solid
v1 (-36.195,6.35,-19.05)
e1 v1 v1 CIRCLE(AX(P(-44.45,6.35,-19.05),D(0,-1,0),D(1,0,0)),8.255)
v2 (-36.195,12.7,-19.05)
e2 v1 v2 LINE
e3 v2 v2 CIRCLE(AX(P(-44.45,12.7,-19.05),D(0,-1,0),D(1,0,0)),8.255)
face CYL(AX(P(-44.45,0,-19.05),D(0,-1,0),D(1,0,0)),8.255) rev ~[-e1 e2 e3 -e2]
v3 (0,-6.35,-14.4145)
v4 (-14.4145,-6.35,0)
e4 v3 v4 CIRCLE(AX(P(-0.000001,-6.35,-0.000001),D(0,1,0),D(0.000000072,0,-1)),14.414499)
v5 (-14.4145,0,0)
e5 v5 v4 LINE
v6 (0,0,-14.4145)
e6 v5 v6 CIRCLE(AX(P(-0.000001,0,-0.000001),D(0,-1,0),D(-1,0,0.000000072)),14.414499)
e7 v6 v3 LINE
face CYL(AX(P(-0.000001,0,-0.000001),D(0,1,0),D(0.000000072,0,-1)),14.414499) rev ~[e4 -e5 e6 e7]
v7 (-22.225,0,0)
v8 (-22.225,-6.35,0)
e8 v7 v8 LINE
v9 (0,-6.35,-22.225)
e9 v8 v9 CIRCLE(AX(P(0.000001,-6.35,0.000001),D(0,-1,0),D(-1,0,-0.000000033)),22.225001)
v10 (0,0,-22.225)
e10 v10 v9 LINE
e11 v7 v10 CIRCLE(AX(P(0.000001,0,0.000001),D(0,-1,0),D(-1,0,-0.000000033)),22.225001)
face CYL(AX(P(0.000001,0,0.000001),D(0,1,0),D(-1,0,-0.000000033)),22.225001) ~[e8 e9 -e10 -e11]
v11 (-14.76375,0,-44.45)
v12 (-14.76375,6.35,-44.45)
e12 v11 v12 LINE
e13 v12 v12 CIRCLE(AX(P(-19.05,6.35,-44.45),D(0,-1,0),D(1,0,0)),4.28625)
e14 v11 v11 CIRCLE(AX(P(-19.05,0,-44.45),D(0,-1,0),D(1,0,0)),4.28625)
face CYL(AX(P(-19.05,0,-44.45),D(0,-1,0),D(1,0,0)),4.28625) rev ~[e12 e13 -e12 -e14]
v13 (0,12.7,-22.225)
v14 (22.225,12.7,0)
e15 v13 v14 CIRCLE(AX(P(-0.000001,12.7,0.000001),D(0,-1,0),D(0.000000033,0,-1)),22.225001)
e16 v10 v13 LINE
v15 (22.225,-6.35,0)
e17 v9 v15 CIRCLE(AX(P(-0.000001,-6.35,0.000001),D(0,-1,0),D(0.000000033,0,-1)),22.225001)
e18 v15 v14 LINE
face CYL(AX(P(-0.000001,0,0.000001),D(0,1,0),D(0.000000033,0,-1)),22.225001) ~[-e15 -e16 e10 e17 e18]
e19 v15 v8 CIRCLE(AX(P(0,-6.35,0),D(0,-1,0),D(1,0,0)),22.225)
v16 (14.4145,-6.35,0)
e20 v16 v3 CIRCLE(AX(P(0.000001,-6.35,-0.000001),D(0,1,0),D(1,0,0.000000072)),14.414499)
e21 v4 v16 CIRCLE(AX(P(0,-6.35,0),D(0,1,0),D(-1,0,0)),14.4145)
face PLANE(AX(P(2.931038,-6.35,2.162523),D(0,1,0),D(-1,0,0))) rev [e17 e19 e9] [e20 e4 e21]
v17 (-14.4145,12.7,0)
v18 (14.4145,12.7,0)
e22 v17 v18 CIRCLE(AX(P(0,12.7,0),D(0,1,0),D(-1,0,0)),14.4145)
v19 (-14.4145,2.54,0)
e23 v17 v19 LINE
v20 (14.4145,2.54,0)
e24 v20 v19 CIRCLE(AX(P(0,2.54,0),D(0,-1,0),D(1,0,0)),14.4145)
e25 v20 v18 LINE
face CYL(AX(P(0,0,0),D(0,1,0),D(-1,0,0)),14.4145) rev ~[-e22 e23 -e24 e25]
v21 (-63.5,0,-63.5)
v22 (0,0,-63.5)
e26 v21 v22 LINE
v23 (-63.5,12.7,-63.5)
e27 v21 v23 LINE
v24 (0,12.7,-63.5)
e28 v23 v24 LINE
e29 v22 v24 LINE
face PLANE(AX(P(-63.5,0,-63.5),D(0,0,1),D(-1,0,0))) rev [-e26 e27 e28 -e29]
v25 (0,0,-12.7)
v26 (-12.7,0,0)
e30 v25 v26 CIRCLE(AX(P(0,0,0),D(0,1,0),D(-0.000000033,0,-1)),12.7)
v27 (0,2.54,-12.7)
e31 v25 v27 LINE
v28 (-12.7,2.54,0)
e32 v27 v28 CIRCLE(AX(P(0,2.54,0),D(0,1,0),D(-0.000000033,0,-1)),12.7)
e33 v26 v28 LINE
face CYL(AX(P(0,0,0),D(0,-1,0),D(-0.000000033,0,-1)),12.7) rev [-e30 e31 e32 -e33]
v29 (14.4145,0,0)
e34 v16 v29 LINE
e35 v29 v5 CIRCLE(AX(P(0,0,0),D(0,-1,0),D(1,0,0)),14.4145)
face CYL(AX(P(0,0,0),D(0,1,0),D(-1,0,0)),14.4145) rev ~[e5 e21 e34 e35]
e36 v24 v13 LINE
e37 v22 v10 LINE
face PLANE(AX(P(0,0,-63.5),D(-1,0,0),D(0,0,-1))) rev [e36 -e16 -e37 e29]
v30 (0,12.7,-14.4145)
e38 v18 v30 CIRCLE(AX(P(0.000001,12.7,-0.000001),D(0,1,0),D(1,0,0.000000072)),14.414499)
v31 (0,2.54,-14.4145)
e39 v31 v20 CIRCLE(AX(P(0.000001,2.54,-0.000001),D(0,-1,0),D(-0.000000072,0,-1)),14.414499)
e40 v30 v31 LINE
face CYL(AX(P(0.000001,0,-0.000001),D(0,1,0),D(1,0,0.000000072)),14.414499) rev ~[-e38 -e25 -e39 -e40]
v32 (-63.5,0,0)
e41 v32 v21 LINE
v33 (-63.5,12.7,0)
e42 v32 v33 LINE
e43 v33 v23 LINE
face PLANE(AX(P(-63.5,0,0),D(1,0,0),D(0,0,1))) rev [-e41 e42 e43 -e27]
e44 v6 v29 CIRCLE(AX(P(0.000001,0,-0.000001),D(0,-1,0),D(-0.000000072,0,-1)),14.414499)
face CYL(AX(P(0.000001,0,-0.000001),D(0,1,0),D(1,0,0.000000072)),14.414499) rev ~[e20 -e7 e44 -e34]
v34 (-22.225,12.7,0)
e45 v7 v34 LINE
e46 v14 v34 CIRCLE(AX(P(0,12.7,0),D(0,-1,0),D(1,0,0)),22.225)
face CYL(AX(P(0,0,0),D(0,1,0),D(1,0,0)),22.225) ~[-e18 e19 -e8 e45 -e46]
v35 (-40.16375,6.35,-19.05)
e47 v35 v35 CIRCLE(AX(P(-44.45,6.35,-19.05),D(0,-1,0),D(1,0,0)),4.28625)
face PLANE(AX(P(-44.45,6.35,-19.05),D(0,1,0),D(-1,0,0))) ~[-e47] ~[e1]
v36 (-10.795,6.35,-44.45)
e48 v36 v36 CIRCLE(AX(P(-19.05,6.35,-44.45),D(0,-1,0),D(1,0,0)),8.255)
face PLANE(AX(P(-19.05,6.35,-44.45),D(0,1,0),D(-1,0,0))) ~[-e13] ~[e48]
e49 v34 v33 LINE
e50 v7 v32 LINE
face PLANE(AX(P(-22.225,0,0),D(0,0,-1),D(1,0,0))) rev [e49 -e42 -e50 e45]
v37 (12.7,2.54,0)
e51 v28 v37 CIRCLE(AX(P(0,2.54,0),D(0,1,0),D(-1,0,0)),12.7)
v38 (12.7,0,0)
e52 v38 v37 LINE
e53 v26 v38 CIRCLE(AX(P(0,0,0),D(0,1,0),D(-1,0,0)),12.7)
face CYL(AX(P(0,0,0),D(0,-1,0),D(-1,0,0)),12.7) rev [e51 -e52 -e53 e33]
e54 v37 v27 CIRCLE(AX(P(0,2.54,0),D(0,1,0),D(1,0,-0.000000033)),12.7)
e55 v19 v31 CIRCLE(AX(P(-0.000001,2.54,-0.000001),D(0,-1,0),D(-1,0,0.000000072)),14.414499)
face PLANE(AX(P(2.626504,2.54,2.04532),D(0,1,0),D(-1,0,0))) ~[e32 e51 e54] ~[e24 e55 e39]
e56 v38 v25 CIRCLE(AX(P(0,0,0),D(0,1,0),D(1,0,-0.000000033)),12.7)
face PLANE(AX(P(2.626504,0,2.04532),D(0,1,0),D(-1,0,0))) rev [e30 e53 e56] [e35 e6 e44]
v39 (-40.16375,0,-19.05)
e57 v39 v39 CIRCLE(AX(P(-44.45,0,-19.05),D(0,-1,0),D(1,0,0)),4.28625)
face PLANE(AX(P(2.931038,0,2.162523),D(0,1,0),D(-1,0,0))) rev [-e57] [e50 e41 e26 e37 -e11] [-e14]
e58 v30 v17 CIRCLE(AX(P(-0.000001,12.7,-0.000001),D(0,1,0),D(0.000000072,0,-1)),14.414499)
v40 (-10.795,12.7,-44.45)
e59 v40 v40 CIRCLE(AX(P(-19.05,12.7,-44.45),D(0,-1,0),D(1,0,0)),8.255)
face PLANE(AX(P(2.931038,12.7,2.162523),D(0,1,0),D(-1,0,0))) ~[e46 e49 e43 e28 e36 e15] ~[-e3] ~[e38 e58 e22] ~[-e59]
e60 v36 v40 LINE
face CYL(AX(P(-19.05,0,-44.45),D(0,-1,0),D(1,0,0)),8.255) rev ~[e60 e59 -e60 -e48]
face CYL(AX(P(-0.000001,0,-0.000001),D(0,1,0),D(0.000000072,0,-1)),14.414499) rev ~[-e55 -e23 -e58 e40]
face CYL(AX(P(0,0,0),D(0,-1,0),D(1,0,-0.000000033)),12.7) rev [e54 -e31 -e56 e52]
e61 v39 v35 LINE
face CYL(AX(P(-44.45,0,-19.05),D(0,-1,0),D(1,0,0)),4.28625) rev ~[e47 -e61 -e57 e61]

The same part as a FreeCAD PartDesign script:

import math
import FreeCAD as App
import Part
import Sketcher
Q = App.Units.Quantity

doc = App.newDocument("Part")
body = doc.addObject("PartDesign::Body", "Body")

sketch1 = body.newObject("Sketcher::SketchObject", "Sketch")
sketch1.AttachmentSupport = (doc.getObject("XZ_Plane"), [""])
sketch1.MapMode = "FlatFace"
sketch1.addGeometry(Part.ArcOfCircle(Part.Circle(App.Vector(0.000001, 0.000001, 0), App.Vector(0, 0, 1), 22.225001), math.radians(-179.999998), math.radians(-90.000002)), False)
sketch1.addGeometry(Part.LineSegment(App.Vector(-22.225, 0, 0), App.Vector(-63.5, 0, 0)), False)
sketch1.addGeometry(Part.LineSegment(App.Vector(-63.5, 0, 0), App.Vector(-63.5, -63.5, 0)), False)
sketch1.addGeometry(Part.LineSegment(App.Vector(-63.5, -63.5, 0), App.Vector(0, -63.5, 0)), False)
sketch1.addGeometry(Part.LineSegment(App.Vector(0, -63.5, 0), App.Vector(0, -22.225, 0)), False)
sketch1.addGeometry(Part.Circle(App.Vector(-19.05, -44.45, 0), App.Vector(0, 0, 1), 8.255), False)
sketch1.addGeometry(Part.Circle(App.Vector(-44.45, -19.05, 0), App.Vector(0, 0, 1), 8.255), False)
sketch1.addConstraint(Sketcher.Constraint("Coincident", 0, 1, 1, 1))
sketch1.addConstraint(Sketcher.Constraint("Coincident", 1, 2, 2, 1))
sketch1.addConstraint(Sketcher.Constraint("Coincident", 2, 2, 3, 1))
sketch1.addConstraint(Sketcher.Constraint("Coincident", 3, 2, 4, 1))
sketch1.addConstraint(Sketcher.Constraint("Coincident", 4, 2, 0, 2))
sketch1.addConstraint(Sketcher.Constraint("Horizontal", 1))
sketch1.addConstraint(Sketcher.Constraint("Vertical", 2))
sketch1.addConstraint(Sketcher.Constraint("Horizontal", 3))
sketch1.addConstraint(Sketcher.Constraint("Vertical", 4))
sketch1.addConstraint(Sketcher.Constraint("Coincident", 0, 3, -1, 1))
sketch1.addConstraint(Sketcher.Constraint("Equal", 5, 6))
sketch1.addConstraint(Sketcher.Constraint("PointOnObject", 0, 1, -1))
sketch1.addConstraint(Sketcher.Constraint("PointOnObject", 3, 2, -2))
sketch1.addConstraint(Sketcher.Constraint("Equal", 3, 2))
sketch1.addConstraint(Sketcher.Constraint("Diameter", 5, Q("0.65 in")))
sketch1.addConstraint(Sketcher.Constraint("DistanceX", 3, 1, 3, 2, Q("2.5 in")))
sketch1.addConstraint(Sketcher.Constraint("Radius", 0, Q("0.875 in")))
sketch1.addConstraint(Sketcher.Constraint("DistanceX", 6, 3, 5, 3, Q("1 in")))
sketch1.addConstraint(Sketcher.Constraint("DistanceY", 5, 3, 6, 3, Q("1 in")))
sketch1.addConstraint(Sketcher.Constraint("DistanceX", 5, 3, -1, 1, Q("0.75 in")))
sketch1.addConstraint(Sketcher.Constraint("DistanceY", 5, 3, -1, 1, Q("1.75 in")))
pad1 = body.newObject("PartDesign::Pad", "Pad")
pad1.Profile = sketch1
pad1.Length = Q("0.5 in")

sketch2 = body.newObject("Sketcher::SketchObject", "Sketch001")
sketch2.AttachmentSupport = (doc.getObject("XZ_Plane"), [""])
sketch2.MapMode = "FlatFace"
sketch2.addGeometry(Part.Circle(App.Vector(-44.45, -19.05, 0), App.Vector(0, 0, 1), 8.255), False)
sketch2.addGeometry(Part.Circle(App.Vector(-44.45, -19.05, 0), App.Vector(0, 0, 1), 4.28625), False)
sketch2.addGeometry(Part.Circle(App.Vector(-19.05, -44.45, 0), App.Vector(0, 0, 1), 8.255), False)
sketch2.addGeometry(Part.Circle(App.Vector(-19.05, -44.45, 0), App.Vector(0, 0, 1), 4.28625), False)
sketch2.addConstraint(Sketcher.Constraint("Coincident", 1, 3, 0, 3))
sketch2.addConstraint(Sketcher.Constraint("Coincident", 3, 3, 2, 3))
sketch2.addConstraint(Sketcher.Constraint("Equal", 0, 2))
sketch2.addConstraint(Sketcher.Constraint("Equal", 1, 3))
sketch2.addConstraint(Sketcher.Constraint("Diameter", 0, Q("0.65 in")))
sketch2.addConstraint(Sketcher.Constraint("DistanceX", 0, 3, 2, 3, Q("1 in")))
sketch2.addConstraint(Sketcher.Constraint("DistanceY", 2, 3, 0, 3, Q("1 in")))
sketch2.addConstraint(Sketcher.Constraint("Diameter", 1, Q("0.3375 in")))
sketch2.addConstraint(Sketcher.Constraint("DistanceX", 0, 3, -1, 1, Q("1.75 in")))
sketch2.addConstraint(Sketcher.Constraint("DistanceY", 0, 3, -1, 1, Q("0.75 in")))
pad2 = body.newObject("PartDesign::Pad", "Pad001")
pad2.Profile = sketch2
pad2.Length = Q("0.25 in")

sketch3 = body.newObject("Sketcher::SketchObject", "Sketch002")
sketch3.AttachmentSupport = (doc.getObject("XZ_Plane"), [""])
sketch3.MapMode = "FlatFace"
sketch3.addGeometry(Part.ArcOfCircle(Part.Circle(App.Vector(-0.000001, 0.000001, 0), App.Vector(0, 0, 1), 22.225001), math.radians(-89.999998), math.radians(-0.000002)), False)
sketch3.addGeometry(Part.ArcOfCircle(Part.Circle(App.Vector(0, 0, 0), App.Vector(0, 0, 1), 22.225), math.radians(0), math.radians(180)), False)
sketch3.addGeometry(Part.ArcOfCircle(Part.Circle(App.Vector(0.000001, 0.000001, 0), App.Vector(0, 0, 1), 22.225001), math.radians(-179.999998), math.radians(-90.000002)), False)
sketch3.addGeometry(Part.ArcOfCircle(Part.Circle(App.Vector(0, 0, 0), App.Vector(0, 0, 1), 14.4145), math.radians(0), math.radians(180)), False)
sketch3.addGeometry(Part.ArcOfCircle(Part.Circle(App.Vector(0.000001, -0.000001, 0), App.Vector(0, 0, 1), 14.414499), math.radians(-90.000004), math.radians(0.000004)), False)
sketch3.addGeometry(Part.ArcOfCircle(Part.Circle(App.Vector(-0.000001, -0.000001, 0), App.Vector(0, 0, 1), 14.414499), math.radians(179.999996), math.radians(270.000004)), False)
sketch3.addConstraint(Sketcher.Constraint("Tangent", 0, 2, 1, 1))
sketch3.addConstraint(Sketcher.Constraint("Tangent", 1, 2, 2, 1))
sketch3.addConstraint(Sketcher.Constraint("Tangent", 2, 2, 0, 1))
sketch3.addConstraint(Sketcher.Constraint("Tangent", 3, 1, 4, 2))
sketch3.addConstraint(Sketcher.Constraint("Tangent", 4, 1, 5, 2))
sketch3.addConstraint(Sketcher.Constraint("Tangent", 5, 1, 3, 2))
sketch3.addConstraint(Sketcher.Constraint("Coincident", 0, 3, -1, 1))
sketch3.addConstraint(Sketcher.Constraint("Coincident", 3, 3, -1, 1))
sketch3.addConstraint(Sketcher.Constraint("PointOnObject", 0, 2, -1))
sketch3.addConstraint(Sketcher.Constraint("PointOnObject", 1, 2, -1))
sketch3.addConstraint(Sketcher.Constraint("PointOnObject", 2, 2, -2))
sketch3.addConstraint(Sketcher.Constraint("PointOnObject", 3, 1, -1))
sketch3.addConstraint(Sketcher.Constraint("PointOnObject", 4, 1, -2))
sketch3.addConstraint(Sketcher.Constraint("PointOnObject", 5, 1, -1))
sketch3.addConstraint(Sketcher.Constraint("Radius", 0, Q("0.875 in")))
sketch3.addConstraint(Sketcher.Constraint("Radius", 3, Q("0.5675 in")))
pad3 = body.newObject("PartDesign::Pad", "Pad002")
pad3.Profile = sketch3
pad3.Type = "TwoLengths"
pad3.Length = Q("0.5 in")
pad3.Length2 = Q("0.25 in")

sketch4 = body.newObject("Sketcher::SketchObject", "Sketch003")
sketch4.AttachmentSupport = (doc.getObject("XZ_Plane"), [""])
sketch4.MapMode = "FlatFace"
sketch4.addGeometry(Part.ArcOfCircle(Part.Circle(App.Vector(0.000001, -0.000001, 0), App.Vector(0, 0, 1), 14.414499), math.radians(-90.000004), math.radians(0.000004)), False)
sketch4.addGeometry(Part.ArcOfCircle(Part.Circle(App.Vector(0, 0, 0), App.Vector(0, 0, 1), 14.4145), math.radians(0), math.radians(180)), False)
sketch4.addGeometry(Part.ArcOfCircle(Part.Circle(App.Vector(-0.000001, -0.000001, 0), App.Vector(0, 0, 1), 14.414499), math.radians(179.999996), math.radians(270.000004)), False)
sketch4.addGeometry(Part.ArcOfCircle(Part.Circle(App.Vector(0, 0, 0), App.Vector(0, 0, 1), 12.7), math.radians(0), math.radians(180)), False)
sketch4.addGeometry(Part.ArcOfCircle(Part.Circle(App.Vector(0, 0, 0), App.Vector(0, 0, 1), 12.7), math.radians(-89.999998), math.radians(-0.000002)), False)
sketch4.addGeometry(Part.ArcOfCircle(Part.Circle(App.Vector(0, 0, 0), App.Vector(0, 0, 1), 12.7), math.radians(-179.999998), math.radians(-90.000002)), False)
sketch4.addConstraint(Sketcher.Constraint("Tangent", 0, 2, 1, 1))
sketch4.addConstraint(Sketcher.Constraint("Tangent", 1, 2, 2, 1))
sketch4.addConstraint(Sketcher.Constraint("Tangent", 2, 2, 0, 1))
sketch4.addConstraint(Sketcher.Constraint("Tangent", 3, 1, 4, 2))
sketch4.addConstraint(Sketcher.Constraint("Tangent", 4, 1, 5, 2))
sketch4.addConstraint(Sketcher.Constraint("Tangent", 5, 1, 3, 2))
sketch4.addConstraint(Sketcher.Constraint("Coincident", 0, 3, -1, 1))
sketch4.addConstraint(Sketcher.Constraint("Coincident", 3, 3, -1, 1))
sketch4.addConstraint(Sketcher.Constraint("PointOnObject", 0, 2, -1))
sketch4.addConstraint(Sketcher.Constraint("PointOnObject", 1, 2, -1))
sketch4.addConstraint(Sketcher.Constraint("PointOnObject", 2, 2, -2))
sketch4.addConstraint(Sketcher.Constraint("PointOnObject", 3, 1, -1))
sketch4.addConstraint(Sketcher.Constraint("PointOnObject", 4, 1, -2))
sketch4.addConstraint(Sketcher.Constraint("PointOnObject", 5, 1, -1))
sketch4.addConstraint(Sketcher.Constraint("Radius", 3, Q("0.5 in")))
sketch4.addConstraint(Sketcher.Constraint("Radius", 0, Q("0.5675 in")))
pad4 = body.newObject("PartDesign::Pad", "Pad003")
pad4.Profile = sketch4
pad4.Length = Q("0.1 in")
body2 = doc.addObject("PartDesign::Body", "Body001")
doc.recompute()

mirroring = doc.addObject("Part::Mirroring", "Mirroring")
mirroring.Source = body
mirroring.Base = App.Vector(0, 0, 0)
mirroring.Normal = App.Vector(0, -1, 0)
body2.BaseFeature = mirroring
doc.recompute()
body.Visibility = False
mirroring.Visibility = False

doc.recompute()
